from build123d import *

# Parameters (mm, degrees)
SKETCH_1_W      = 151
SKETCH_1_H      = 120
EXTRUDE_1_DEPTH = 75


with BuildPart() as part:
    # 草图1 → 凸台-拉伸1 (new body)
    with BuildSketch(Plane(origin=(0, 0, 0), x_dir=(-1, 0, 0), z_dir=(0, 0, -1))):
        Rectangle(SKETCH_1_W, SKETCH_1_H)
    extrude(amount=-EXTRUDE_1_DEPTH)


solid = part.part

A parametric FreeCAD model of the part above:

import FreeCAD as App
import Part
import Sketcher

V = App.Vector

doc = App.newDocument("Part")
params = doc.addObject("Spreadsheet::Sheet", "Params")
for row, (alias, value) in enumerate([
    ("sketch1_width", "151 mm"),
    ("sketch1_height", "120 mm"),
    ("pad1_length", "75 mm"),
], start=1):
    params.set(f"A{row}", alias)
    params.set(f"B{row}", "=" + value)
    params.setAlias(f"B{row}", alias)

body = doc.addObject("PartDesign::Body", "Body")

sketch1 = doc.addObject("Sketcher::SketchObject", "Sketch")
body.addObject(sketch1)
sketch1.AttachmentSupport = (doc.XY_Plane, [""])
sketch1.MapMode = "FlatFace"
sketch1.addGeometry(Part.LineSegment(V(76, 60, 0), V(76, -60, 0)), False)
sketch1.addGeometry(Part.LineSegment(V(76, -60, 0), V(-76, -60, 0)), False)
sketch1.addGeometry(Part.LineSegment(V(-76, -60, 0), V(-76, 60, 0)), False)
sketch1.addGeometry(Part.LineSegment(V(-76, 60, 0), V(76, 60, 0)), False)
sketch1.addConstraint(Sketcher.Constraint("Coincident", 0, 2, 1, 1))
sketch1.addConstraint(Sketcher.Constraint("Coincident", 1, 2, 2, 1))
sketch1.addConstraint(Sketcher.Constraint("Coincident", 2, 2, 3, 1))
sketch1.addConstraint(Sketcher.Constraint("Coincident", 3, 2, 0, 1))
sketch1.addConstraint(Sketcher.Constraint("Vertical", 0))
sketch1.addConstraint(Sketcher.Constraint("Horizontal", 1))
sketch1.addConstraint(Sketcher.Constraint("Vertical", 2))
sketch1.addConstraint(Sketcher.Constraint("Horizontal", 3))
sketch1.addConstraint(Sketcher.Constraint("Symmetric", 0, 2, 2, 2, -1, 1))
sketch1.addConstraint(Sketcher.Constraint("DistanceX", 1, 2, 1, 1, 151.0))
sketch1.addConstraint(Sketcher.Constraint("DistanceY", 0, 2, 0, 1, 120.0))
sketch1.setExpression("Constraints[9]", "Params.sketch1_width")
sketch1.setExpression("Constraints[10]", "Params.sketch1_height")
pad1 = doc.addObject("PartDesign::Pad", "Pad")
body.addObject(pad1)
pad1.Profile = sketch1
pad1.setExpression("Length", "Params.pad1_length")

doc.recompute()
